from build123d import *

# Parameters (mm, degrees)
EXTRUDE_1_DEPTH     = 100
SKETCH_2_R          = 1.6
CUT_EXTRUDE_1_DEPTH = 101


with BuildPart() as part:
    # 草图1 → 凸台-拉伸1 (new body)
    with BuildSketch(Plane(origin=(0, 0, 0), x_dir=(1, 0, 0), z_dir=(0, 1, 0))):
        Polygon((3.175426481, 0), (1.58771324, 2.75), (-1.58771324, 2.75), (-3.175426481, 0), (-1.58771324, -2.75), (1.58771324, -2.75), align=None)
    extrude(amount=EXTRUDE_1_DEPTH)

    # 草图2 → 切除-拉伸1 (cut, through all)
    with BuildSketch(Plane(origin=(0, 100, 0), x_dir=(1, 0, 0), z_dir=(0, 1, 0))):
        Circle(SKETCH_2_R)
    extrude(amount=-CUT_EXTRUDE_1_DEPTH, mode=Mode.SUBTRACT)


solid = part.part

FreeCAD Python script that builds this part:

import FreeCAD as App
import Part
import Sketcher
Q = App.Units.Quantity


def add_polygon(sketch, points):
    """Adds a closed chain of lines whose ends are joined by coincident constraints."""
    first, n = sketch.GeometryCount, len(points)
    for a, b in zip(points, points[1:] + points[:1]):
        sketch.addGeometry(Part.LineSegment(App.Vector(*a, 0), App.Vector(*b, 0)), False)
    for i in range(n):
        sketch.addConstraint(Sketcher.Constraint("Coincident", first + i, 2, first + (i + 1) % n, 1))

doc = App.newDocument("Part")
params = doc.addObject("Spreadsheet::Sheet", "Params")
for row, (alias, value) in enumerate([
    ("pad1_length", "100 mm"),
    ("sketch2_diameter", "3.2 mm"),
], start=1):
    params.set(f"A{row}", alias)
    params.set(f"B{row}", "=" + value)
    params.setAlias(f"B{row}", alias)

body = doc.addObject("PartDesign::Body", "Body")

# Sketch on XZ plane
sketch1 = body.newObject("Sketcher::SketchObject", "Sketch")
sketch1.AttachmentSupport = (doc.getObject("XZ_Plane"), [""])
sketch1.MapMode = "FlatFace"
add_polygon(sketch1, [(3.2, 0), (1.6, -2.8), (-1.6, -2.8), (-3.2, 0), (-1.6, 2.8), (1.6, 2.8)])  # lines 0-5
sketch1.addConstraint([
    Sketcher.Constraint("Horizontal", 1),
    Sketcher.Constraint("Horizontal", 4),
    Sketcher.Constraint("Symmetric", 0, 2, 3, 2, -1, 1),
    Sketcher.Constraint("Symmetric", 2, 2, 5, 2, -1, 1),
    Sketcher.Constraint("PointOnObject", 2, 2, -1),
    Sketcher.Constraint("Parallel", 2, 5),
    Sketcher.Constraint("Vertical", 1, 2, 3, 2),
    Sketcher.Constraint("Angle", 0, Q("-120 deg")),
    Sketcher.Constraint("DistanceY", 1, 2, 3, 2, 5.5),
    Sketcher.Constraint("DistanceX", 1, 2, 1, 1, 3.175426),
])
pad1 = body.newObject("PartDesign::Pad", "Pad")
pad1.Profile = sketch1
pad1.setExpression("Length", "Params.pad1_length")
pad1.Reversed = True

# Sketch on XZ plane
sketch2 = body.newObject("Sketcher::SketchObject", "Sketch001")
sketch2.AttachmentSupport = (doc.getObject("XZ_Plane"), [""])
sketch2.MapMode = "FlatFace"
sketch2.AttachmentOffset = App.Placement(App.Vector(0, 0, -100), App.Rotation())
sketch2.addGeometry(Part.Circle(App.Vector(0, 0, 0), App.Vector(0, 0, 1), 1.6), False)
sketch2.addConstraint([
    Sketcher.Constraint("Coincident", 0, 3, -1, 1),
    Sketcher.Constraint("Diameter", 0, 3.2),
])
sketch2.setExpression("Constraints[1]", "Params.sketch2_diameter")
pocket1 = body.newObject("PartDesign::Pocket", "Pocket")
pocket1.Profile = sketch2
pocket1.Type = "ThroughAll"
pocket1.Reversed = True

doc.recompute()
